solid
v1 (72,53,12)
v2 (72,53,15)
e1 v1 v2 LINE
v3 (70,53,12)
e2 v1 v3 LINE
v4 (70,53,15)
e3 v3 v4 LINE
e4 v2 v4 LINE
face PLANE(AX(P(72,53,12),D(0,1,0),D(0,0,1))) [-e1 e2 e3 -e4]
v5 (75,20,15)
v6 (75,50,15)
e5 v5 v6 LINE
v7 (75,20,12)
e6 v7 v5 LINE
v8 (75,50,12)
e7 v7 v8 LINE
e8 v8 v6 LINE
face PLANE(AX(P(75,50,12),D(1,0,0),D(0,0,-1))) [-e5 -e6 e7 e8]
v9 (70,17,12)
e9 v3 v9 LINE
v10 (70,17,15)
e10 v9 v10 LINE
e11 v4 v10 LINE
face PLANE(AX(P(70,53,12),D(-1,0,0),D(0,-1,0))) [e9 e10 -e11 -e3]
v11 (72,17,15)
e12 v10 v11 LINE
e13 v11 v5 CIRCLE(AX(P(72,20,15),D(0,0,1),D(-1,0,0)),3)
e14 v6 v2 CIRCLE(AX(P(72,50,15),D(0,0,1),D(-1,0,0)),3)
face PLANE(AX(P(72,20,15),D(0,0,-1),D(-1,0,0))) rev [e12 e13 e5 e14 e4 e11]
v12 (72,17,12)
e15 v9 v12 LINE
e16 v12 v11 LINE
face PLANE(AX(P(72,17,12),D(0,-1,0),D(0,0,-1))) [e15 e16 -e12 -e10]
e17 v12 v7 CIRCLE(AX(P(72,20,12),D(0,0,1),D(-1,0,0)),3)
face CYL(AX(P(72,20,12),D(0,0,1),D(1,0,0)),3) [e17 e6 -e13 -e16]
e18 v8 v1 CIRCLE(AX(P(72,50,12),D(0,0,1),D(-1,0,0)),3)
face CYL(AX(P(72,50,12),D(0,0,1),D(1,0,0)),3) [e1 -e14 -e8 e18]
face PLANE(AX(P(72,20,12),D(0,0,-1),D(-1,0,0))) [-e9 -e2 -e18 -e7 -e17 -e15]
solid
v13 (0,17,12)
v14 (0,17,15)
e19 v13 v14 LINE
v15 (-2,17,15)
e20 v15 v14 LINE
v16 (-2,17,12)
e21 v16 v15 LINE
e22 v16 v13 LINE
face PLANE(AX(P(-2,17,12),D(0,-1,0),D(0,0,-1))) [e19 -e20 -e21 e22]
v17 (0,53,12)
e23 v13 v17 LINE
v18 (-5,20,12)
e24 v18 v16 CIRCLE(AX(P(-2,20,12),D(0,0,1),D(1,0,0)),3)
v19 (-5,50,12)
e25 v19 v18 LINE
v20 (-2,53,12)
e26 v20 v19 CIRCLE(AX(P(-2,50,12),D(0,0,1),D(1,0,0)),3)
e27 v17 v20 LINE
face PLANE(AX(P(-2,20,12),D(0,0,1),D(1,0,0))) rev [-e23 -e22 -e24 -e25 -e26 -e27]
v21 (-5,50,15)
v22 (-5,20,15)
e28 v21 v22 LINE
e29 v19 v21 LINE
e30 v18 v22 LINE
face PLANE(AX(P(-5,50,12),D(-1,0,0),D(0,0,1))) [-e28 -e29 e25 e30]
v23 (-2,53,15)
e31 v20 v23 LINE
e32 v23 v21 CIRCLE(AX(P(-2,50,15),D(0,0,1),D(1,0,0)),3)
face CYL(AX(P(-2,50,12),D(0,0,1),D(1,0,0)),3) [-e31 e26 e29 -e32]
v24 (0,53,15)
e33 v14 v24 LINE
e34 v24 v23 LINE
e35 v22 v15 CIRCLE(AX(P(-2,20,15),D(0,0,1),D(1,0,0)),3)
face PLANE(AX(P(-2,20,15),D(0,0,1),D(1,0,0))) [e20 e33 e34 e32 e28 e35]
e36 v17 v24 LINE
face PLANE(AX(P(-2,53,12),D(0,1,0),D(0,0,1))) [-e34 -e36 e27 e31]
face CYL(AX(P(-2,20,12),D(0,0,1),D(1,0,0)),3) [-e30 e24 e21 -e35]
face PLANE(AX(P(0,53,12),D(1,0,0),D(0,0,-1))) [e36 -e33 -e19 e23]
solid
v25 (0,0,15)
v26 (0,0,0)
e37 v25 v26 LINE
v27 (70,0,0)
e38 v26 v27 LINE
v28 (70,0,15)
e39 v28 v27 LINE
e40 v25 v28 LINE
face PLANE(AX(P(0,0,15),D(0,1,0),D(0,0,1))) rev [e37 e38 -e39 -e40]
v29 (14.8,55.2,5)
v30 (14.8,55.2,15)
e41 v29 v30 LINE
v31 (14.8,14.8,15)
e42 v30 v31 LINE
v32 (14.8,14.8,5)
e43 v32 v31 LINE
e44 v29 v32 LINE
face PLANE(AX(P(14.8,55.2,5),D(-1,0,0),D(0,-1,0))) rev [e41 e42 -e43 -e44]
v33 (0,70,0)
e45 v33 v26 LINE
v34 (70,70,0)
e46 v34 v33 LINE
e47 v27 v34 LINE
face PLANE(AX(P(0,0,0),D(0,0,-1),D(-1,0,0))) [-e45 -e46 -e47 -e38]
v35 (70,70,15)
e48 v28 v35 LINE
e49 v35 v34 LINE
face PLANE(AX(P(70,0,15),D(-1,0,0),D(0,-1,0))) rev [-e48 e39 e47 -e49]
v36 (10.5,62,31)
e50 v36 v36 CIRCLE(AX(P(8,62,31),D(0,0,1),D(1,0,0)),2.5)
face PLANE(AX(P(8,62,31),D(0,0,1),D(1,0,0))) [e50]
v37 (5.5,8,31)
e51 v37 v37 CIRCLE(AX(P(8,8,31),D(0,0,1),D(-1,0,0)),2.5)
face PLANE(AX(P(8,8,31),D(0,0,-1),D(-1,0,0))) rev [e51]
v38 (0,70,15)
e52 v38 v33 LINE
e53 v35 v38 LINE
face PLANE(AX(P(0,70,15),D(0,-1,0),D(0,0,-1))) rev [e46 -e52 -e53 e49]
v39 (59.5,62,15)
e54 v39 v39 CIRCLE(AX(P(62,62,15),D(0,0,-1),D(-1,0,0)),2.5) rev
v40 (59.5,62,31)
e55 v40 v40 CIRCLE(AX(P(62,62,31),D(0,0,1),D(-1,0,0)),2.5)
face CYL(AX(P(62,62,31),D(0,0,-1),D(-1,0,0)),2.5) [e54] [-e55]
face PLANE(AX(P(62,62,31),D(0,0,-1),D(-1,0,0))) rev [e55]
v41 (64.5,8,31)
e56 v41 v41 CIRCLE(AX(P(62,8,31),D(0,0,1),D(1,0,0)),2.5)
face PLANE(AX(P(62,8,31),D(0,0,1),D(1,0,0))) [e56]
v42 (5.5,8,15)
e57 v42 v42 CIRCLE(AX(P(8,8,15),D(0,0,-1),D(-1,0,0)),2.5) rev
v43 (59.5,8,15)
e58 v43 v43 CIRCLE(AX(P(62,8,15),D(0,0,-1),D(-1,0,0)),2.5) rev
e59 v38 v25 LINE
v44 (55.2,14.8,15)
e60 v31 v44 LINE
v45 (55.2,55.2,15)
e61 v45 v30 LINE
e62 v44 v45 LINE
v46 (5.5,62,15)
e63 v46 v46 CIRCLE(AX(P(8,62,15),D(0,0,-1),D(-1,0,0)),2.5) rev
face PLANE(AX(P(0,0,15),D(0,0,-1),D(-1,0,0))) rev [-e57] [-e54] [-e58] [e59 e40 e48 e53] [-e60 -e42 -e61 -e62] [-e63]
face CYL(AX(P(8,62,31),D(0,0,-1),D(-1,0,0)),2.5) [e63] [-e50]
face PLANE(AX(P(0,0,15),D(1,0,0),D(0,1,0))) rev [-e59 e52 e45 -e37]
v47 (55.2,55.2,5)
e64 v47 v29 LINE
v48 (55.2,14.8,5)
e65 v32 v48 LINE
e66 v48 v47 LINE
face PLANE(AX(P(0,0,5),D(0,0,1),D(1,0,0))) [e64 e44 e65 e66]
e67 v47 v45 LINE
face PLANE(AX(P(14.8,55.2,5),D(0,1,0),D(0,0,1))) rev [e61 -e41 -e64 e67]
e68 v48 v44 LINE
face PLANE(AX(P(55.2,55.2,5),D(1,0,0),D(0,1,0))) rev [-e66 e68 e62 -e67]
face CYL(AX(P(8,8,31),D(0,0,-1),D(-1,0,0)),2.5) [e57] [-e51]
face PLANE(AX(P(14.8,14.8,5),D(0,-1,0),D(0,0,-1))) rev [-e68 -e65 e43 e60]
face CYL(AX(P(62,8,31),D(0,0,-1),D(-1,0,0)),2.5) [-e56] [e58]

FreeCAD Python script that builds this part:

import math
import FreeCAD as App
import Part
import Sketcher
from FreeCAD import Vector


def add_polygon(sketch, points):
    """Adds a closed chain of lines whose ends are joined by coincident constraints."""
    first, n = sketch.GeometryCount, len(points)
    for a, b in zip(points, points[1:] + points[:1]):
        sketch.addGeometry(Part.LineSegment(App.Vector(*a, 0), App.Vector(*b, 0)), False)
    for i in range(n):
        sketch.addConstraint(Sketcher.Constraint("Coincident", first + i, 2, first + (i + 1) % n, 1))

doc = App.newDocument("Part")
body = doc.addObject("PartDesign::Body", "Body")

sketch1 = body.newObject("Sketcher::SketchObject", "Sketch")
sketch1.AttachmentSupport = (doc.getObject("XY_Plane"), [""])
sketch1.MapMode = "FlatFace"
add_polygon(sketch1, [(0, 70), (0, 0), (70, 0), (70, 70)])
sketch1.addConstraint([
    Sketcher.Constraint("Vertical", 0),
    Sketcher.Constraint("Horizontal", 1),
    Sketcher.Constraint("Vertical", 2),
    Sketcher.Constraint("Horizontal", 3),
    Sketcher.Constraint("Coincident", 0, 2, -1, 1),
    Sketcher.Constraint("Equal", 3, 0),
    Sketcher.Constraint("DistanceX", 1, 1, 1, 2, 70.0),
])
pad1 = body.newObject("PartDesign::Pad", "Pad")
pad1.Profile = sketch1
pad1.Length = 15

sketch2 = body.newObject("Sketcher::SketchObject", "Sketch001")
sketch2.AttachmentSupport = (doc.getObject("XY_Plane"), [""])
sketch2.MapMode = "FlatFace"
sketch2.AttachmentOffset = App.Placement(Vector(0, 0, 15), App.Rotation())
add_polygon(sketch2, [(15, 55), (15, 15), (55, 15), (55, 55)])
sketch2.addConstraint([
    Sketcher.Constraint("Vertical", 0),
    Sketcher.Constraint("Horizontal", 1),
    Sketcher.Constraint("Vertical", 2),
    Sketcher.Constraint("Horizontal", 3),
    Sketcher.Constraint("Equal", 3, 0),
    Sketcher.Constraint("DistanceX", 1, 1, 1, 2, 40.4),
    Sketcher.Constraint("DistanceX", -1, 1, 0, 2, 14.8),
    Sketcher.Constraint("DistanceY", -1, 1, 0, 2, 14.8),
])
pocket1 = body.newObject("PartDesign::Pocket", "Pocket")
pocket1.Profile = sketch2
pocket1.Length = 10

sketch3 = body.newObject("Sketcher::SketchObject", "Sketch002")
sketch3.AttachmentSupport = (doc.getObject("XY_Plane"), [""])
sketch3.MapMode = "FlatFace"
sketch3.AttachmentOffset = App.Placement(Vector(0, 0, 15), App.Rotation())
sketch3.addGeometry([
    Part.Circle(Vector(8, 62, 0), Vector(0, 0, 1), 2.5),
    Part.Circle(Vector(62, 62, 0), Vector(0, 0, 1), 2.5),
    Part.Circle(Vector(62, 8, 0), Vector(0, 0, 1), 2.5),
    Part.Circle(Vector(8, 8, 0), Vector(0, 0, 1), 2.5),
], False)
sketch3.addConstraint([
    Sketcher.Constraint("Equal", 0, 1),
    Sketcher.Constraint("Equal", 1, 2),
    Sketcher.Constraint("Equal", 2, 3),
    Sketcher.Constraint("Horizontal", 0, 3, 1, 3),
    Sketcher.Constraint("Horizontal", 2, 3, 3, 3),
    Sketcher.Constraint("Vertical", 1, 3, 2, 3),
    Sketcher.Constraint("Vertical", 0, 3, 3, 3),
    Sketcher.Constraint("Diameter", 0, 5.0),
    Sketcher.Constraint("DistanceX", -1, 1, 0, 3, 8.0),
    Sketcher.Constraint("DistanceY", -1, 1, 0, 3, 62.0),
    Sketcher.Constraint("DistanceX", -1, 1, 1, 3, 62.0),
    Sketcher.Constraint("DistanceY", -1, 1, 2, 3, 8.0),
])
pad2 = body.newObject("PartDesign::Pad", "Pad001")
pad2.Profile = sketch3
pad2.Length = 16
body2 = doc.addObject("PartDesign::Body", "Body001")

sketch4 = body2.newObject("Sketcher::SketchObject", "Sketch003")
sketch4.AttachmentSupport = (doc.getObject("XY_Plane001"), [""])
sketch4.MapMode = "FlatFace"
sketch4.AttachmentOffset = App.Placement(Vector(0, 0, 15), App.Rotation())
sketch4.addGeometry([
    Part.LineSegment(Vector(0, 53, 0), Vector(-2, 53, 0)),
    Part.ArcOfCircle(Part.Circle(Vector(-2, 50, 0), Vector(0, 0, 1), 3), math.radians(90), math.radians(180)),
    Part.LineSegment(Vector(-5, 50, 0), Vector(-5, 20, 0)),
    Part.ArcOfCircle(Part.Circle(Vector(-2, 20, 0), Vector(0, 0, 1), 3), math.radians(180), math.radians(270)),
    Part.LineSegment(Vector(-2, 17, 0), Vector(0, 17, 0)),
    Part.LineSegment(Vector(0, 17, 0), Vector(0, 53, 0)),
], False)
sketch4.addConstraint([
    Sketcher.Constraint("Tangent", 0, 2, 1, 1),
    Sketcher.Constraint("Tangent", 1, 2, 2, 1),
    Sketcher.Constraint("Tangent", 2, 2, 3, 1),
    Sketcher.Constraint("Tangent", 3, 2, 4, 1),
    Sketcher.Constraint("Coincident", 4, 2, 5, 1),
    Sketcher.Constraint("Coincident", 5, 2, 0, 1),
    Sketcher.Constraint("Horizontal", 0),
    Sketcher.Constraint("Vertical", 2),
    Sketcher.Constraint("Horizontal", 4),
    Sketcher.Constraint("Vertical", 5),
    Sketcher.Constraint("Equal", 1, 3),
    Sketcher.Constraint("PointOnObject", 4, 2, -2),
    Sketcher.Constraint("Radius", 1, 3.0),
    Sketcher.Constraint("DistanceX", 0, 2, 0, 1, 2.0),
    Sketcher.Constraint("DistanceY", 2, 2, 2, 1, 30.0),
    Sketcher.Constraint("DistanceY", -1, 1, 1, 3, 50.0),
])
pad3 = body2.newObject("PartDesign::Pad", "Pad002")
pad3.Profile = sketch4
pad3.Length = 3
pad3.Reversed = True
body3 = doc.addObject("PartDesign::Body", "Body002")

sketch5 = body3.newObject("Sketcher::SketchObject", "Sketch004")
sketch5.AttachmentSupport = (doc.getObject("XY_Plane002"), [""])
sketch5.MapMode = "FlatFace"
sketch5.AttachmentOffset = App.Placement(Vector(0, 0, 15), App.Rotation())
sketch5.addGeometry([
    Part.LineSegment(Vector(70, 17, 0), Vector(72, 17, 0)),
    Part.ArcOfCircle(Part.Circle(Vector(72, 20, 0), Vector(0, 0, 1), 3), math.radians(-90), math.radians(0)),
    Part.LineSegment(Vector(75, 20, 0), Vector(75, 50, 0)),
    Part.ArcOfCircle(Part.Circle(Vector(72, 50, 0), Vector(0, 0, 1), 3), math.radians(0), math.radians(90)),
    Part.LineSegment(Vector(72, 53, 0), Vector(70, 53, 0)),
    Part.LineSegment(Vector(70, 53, 0), Vector(70, 17, 0)),
], False)
sketch5.addConstraint([
    Sketcher.Constraint("Tangent", 0, 2, 1, 1),
    Sketcher.Constraint("Tangent", 1, 2, 2, 1),
    Sketcher.Constraint("Tangent", 2, 2, 3, 1),
    Sketcher.Constraint("Tangent", 3, 2, 4, 1),
    Sketcher.Constraint("Coincident", 4, 2, 5, 1),
    Sketcher.Constraint("Coincident", 5, 2, 0, 1),
    Sketcher.Constraint("Horizontal", 0),
    Sketcher.Constraint("Vertical", 2),
    Sketcher.Constraint("Horizontal", 4),
    Sketcher.Constraint("Vertical", 5),
    Sketcher.Constraint("Equal", 1, 3),
    Sketcher.Constraint("Radius", 1, 3.0),
    Sketcher.Constraint("DistanceX", 0, 1, 0, 2, 2.0),
    Sketcher.Constraint("DistanceY", 2, 1, 2, 2, 30.0),
    Sketcher.Constraint("DistanceX", -1, 1, 1, 3, 72.0),
    Sketcher.Constraint("DistanceY", -1, 1, 1, 3, 20.0),
])
pad4 = body3.newObject("PartDesign::Pad", "Pad003")
pad4.Profile = sketch5
pad4.Length = 3
pad4.Reversed = True

doc.recompute()
